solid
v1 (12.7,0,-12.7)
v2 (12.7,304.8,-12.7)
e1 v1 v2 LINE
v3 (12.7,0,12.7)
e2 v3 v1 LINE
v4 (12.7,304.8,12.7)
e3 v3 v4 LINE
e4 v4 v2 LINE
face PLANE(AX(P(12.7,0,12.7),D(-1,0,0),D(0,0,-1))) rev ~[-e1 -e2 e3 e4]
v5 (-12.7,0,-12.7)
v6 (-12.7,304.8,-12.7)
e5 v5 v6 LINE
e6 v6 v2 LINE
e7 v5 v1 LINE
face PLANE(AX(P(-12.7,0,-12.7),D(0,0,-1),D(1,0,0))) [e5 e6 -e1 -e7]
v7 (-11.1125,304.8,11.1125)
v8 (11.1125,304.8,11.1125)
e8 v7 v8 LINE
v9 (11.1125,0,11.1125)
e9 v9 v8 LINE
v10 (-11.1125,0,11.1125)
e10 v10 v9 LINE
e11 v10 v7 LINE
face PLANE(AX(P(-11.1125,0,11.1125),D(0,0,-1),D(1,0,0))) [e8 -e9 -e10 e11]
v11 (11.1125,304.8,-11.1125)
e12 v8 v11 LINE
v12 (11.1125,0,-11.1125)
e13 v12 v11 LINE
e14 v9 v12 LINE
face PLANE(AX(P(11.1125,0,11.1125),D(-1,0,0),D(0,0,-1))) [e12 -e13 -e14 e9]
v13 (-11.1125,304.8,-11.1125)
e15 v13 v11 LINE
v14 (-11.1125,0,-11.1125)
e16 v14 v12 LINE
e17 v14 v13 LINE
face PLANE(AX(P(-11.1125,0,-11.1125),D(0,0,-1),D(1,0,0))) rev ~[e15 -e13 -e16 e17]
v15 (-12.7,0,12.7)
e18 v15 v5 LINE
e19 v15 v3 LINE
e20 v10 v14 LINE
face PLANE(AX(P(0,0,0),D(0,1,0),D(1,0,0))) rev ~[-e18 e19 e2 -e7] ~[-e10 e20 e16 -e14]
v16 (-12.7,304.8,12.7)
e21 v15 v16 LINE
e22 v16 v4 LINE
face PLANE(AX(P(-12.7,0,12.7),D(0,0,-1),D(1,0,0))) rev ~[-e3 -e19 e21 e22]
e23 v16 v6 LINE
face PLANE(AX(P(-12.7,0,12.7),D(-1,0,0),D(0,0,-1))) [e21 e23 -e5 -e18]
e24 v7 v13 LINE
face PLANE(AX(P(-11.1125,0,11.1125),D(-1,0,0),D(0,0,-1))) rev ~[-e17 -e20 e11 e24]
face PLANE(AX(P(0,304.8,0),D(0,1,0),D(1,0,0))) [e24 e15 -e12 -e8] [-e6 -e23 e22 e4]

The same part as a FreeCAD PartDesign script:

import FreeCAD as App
import Part
import Sketcher
Q = App.Units.Quantity

doc = App.newDocument("Part")
params = doc.addObject("Spreadsheet::Sheet", "Params")
for row, (alias, value) in enumerate([
    ("sketch1_width", "1 in"),
    ("sketch1_width2", "0.875 in"),
    ("pad1_length", "12 in"),
], start=1):
    params.set(f"A{row}", alias)
    params.set(f"B{row}", "=" + value)
    params.setAlias(f"B{row}", alias)

body = doc.addObject("PartDesign::Body", "Body")

# Sketch on XZ plane
sketch1 = body.newObject("Sketcher::SketchObject", "Sketch")
sketch1.AttachmentSupport = (doc.getObject("XZ_Plane"), [""])
sketch1.MapMode = "FlatFace"
sketch1.addGeometry(Part.LineSegment(App.Vector(-13, -13, 0), App.Vector(-13, 13, 0)), False)
sketch1.addGeometry(Part.LineSegment(App.Vector(-13, 13, 0), App.Vector(13, 13, 0)), False)
sketch1.addGeometry(Part.LineSegment(App.Vector(13, 13, 0), App.Vector(13, -13, 0)), False)
sketch1.addGeometry(Part.LineSegment(App.Vector(13, -13, 0), App.Vector(-13, -13, 0)), False)
sketch1.addGeometry(Part.LineSegment(App.Vector(11, 11, 0), App.Vector(-11, 11, 0)), False)
sketch1.addGeometry(Part.LineSegment(App.Vector(-11, 11, 0), App.Vector(-11, -11, 0)), False)
sketch1.addGeometry(Part.LineSegment(App.Vector(-11, -11, 0), App.Vector(11, -11, 0)), False)
sketch1.addGeometry(Part.LineSegment(App.Vector(11, -11, 0), App.Vector(11, 11, 0)), False)
sketch1.addConstraint(Sketcher.Constraint("Coincident", 0, 2, 1, 1))
sketch1.addConstraint(Sketcher.Constraint("Coincident", 1, 2, 2, 1))
sketch1.addConstraint(Sketcher.Constraint("Coincident", 2, 2, 3, 1))
sketch1.addConstraint(Sketcher.Constraint("Coincident", 3, 2, 0, 1))
sketch1.addConstraint(Sketcher.Constraint("Coincident", 4, 2, 5, 1))
sketch1.addConstraint(Sketcher.Constraint("Coincident", 5, 2, 6, 1))
sketch1.addConstraint(Sketcher.Constraint("Coincident", 6, 2, 7, 1))
sketch1.addConstraint(Sketcher.Constraint("Coincident", 7, 2, 4, 1))
sketch1.addConstraint(Sketcher.Constraint("Vertical", 0))
sketch1.addConstraint(Sketcher.Constraint("Horizontal", 1))
sketch1.addConstraint(Sketcher.Constraint("Vertical", 2))
sketch1.addConstraint(Sketcher.Constraint("Horizontal", 3))
sketch1.addConstraint(Sketcher.Constraint("Horizontal", 4))
sketch1.addConstraint(Sketcher.Constraint("Vertical", 5))
sketch1.addConstraint(Sketcher.Constraint("Horizontal", 6))
sketch1.addConstraint(Sketcher.Constraint("Vertical", 7))
sketch1.addConstraint(Sketcher.Constraint("Symmetric", 0, 2, 2, 2, -1, 1))
sketch1.addConstraint(Sketcher.Constraint("Symmetric", 4, 2, 6, 2, -1, 1))
sketch1.addConstraint(Sketcher.Constraint("Equal", 3, 0))
sketch1.addConstraint(Sketcher.Constraint("Equal", 6, 5))
sketch1.addConstraint(Sketcher.Constraint("DistanceX", 1, 1, 1, 2, Q("1 in")))
sketch1.addConstraint(Sketcher.Constraint("DistanceX", 4, 2, 4, 1, Q("0.875 in")))
sketch1.setExpression("Constraints[20]", "Params.sketch1_width")
sketch1.setExpression("Constraints[21]", "Params.sketch1_width2")
pad1 = body.newObject("PartDesign::Pad", "Pad")
pad1.Profile = sketch1
pad1.setExpression("Length", "Params.pad1_length")
pad1.Reversed = True

doc.recompute()
